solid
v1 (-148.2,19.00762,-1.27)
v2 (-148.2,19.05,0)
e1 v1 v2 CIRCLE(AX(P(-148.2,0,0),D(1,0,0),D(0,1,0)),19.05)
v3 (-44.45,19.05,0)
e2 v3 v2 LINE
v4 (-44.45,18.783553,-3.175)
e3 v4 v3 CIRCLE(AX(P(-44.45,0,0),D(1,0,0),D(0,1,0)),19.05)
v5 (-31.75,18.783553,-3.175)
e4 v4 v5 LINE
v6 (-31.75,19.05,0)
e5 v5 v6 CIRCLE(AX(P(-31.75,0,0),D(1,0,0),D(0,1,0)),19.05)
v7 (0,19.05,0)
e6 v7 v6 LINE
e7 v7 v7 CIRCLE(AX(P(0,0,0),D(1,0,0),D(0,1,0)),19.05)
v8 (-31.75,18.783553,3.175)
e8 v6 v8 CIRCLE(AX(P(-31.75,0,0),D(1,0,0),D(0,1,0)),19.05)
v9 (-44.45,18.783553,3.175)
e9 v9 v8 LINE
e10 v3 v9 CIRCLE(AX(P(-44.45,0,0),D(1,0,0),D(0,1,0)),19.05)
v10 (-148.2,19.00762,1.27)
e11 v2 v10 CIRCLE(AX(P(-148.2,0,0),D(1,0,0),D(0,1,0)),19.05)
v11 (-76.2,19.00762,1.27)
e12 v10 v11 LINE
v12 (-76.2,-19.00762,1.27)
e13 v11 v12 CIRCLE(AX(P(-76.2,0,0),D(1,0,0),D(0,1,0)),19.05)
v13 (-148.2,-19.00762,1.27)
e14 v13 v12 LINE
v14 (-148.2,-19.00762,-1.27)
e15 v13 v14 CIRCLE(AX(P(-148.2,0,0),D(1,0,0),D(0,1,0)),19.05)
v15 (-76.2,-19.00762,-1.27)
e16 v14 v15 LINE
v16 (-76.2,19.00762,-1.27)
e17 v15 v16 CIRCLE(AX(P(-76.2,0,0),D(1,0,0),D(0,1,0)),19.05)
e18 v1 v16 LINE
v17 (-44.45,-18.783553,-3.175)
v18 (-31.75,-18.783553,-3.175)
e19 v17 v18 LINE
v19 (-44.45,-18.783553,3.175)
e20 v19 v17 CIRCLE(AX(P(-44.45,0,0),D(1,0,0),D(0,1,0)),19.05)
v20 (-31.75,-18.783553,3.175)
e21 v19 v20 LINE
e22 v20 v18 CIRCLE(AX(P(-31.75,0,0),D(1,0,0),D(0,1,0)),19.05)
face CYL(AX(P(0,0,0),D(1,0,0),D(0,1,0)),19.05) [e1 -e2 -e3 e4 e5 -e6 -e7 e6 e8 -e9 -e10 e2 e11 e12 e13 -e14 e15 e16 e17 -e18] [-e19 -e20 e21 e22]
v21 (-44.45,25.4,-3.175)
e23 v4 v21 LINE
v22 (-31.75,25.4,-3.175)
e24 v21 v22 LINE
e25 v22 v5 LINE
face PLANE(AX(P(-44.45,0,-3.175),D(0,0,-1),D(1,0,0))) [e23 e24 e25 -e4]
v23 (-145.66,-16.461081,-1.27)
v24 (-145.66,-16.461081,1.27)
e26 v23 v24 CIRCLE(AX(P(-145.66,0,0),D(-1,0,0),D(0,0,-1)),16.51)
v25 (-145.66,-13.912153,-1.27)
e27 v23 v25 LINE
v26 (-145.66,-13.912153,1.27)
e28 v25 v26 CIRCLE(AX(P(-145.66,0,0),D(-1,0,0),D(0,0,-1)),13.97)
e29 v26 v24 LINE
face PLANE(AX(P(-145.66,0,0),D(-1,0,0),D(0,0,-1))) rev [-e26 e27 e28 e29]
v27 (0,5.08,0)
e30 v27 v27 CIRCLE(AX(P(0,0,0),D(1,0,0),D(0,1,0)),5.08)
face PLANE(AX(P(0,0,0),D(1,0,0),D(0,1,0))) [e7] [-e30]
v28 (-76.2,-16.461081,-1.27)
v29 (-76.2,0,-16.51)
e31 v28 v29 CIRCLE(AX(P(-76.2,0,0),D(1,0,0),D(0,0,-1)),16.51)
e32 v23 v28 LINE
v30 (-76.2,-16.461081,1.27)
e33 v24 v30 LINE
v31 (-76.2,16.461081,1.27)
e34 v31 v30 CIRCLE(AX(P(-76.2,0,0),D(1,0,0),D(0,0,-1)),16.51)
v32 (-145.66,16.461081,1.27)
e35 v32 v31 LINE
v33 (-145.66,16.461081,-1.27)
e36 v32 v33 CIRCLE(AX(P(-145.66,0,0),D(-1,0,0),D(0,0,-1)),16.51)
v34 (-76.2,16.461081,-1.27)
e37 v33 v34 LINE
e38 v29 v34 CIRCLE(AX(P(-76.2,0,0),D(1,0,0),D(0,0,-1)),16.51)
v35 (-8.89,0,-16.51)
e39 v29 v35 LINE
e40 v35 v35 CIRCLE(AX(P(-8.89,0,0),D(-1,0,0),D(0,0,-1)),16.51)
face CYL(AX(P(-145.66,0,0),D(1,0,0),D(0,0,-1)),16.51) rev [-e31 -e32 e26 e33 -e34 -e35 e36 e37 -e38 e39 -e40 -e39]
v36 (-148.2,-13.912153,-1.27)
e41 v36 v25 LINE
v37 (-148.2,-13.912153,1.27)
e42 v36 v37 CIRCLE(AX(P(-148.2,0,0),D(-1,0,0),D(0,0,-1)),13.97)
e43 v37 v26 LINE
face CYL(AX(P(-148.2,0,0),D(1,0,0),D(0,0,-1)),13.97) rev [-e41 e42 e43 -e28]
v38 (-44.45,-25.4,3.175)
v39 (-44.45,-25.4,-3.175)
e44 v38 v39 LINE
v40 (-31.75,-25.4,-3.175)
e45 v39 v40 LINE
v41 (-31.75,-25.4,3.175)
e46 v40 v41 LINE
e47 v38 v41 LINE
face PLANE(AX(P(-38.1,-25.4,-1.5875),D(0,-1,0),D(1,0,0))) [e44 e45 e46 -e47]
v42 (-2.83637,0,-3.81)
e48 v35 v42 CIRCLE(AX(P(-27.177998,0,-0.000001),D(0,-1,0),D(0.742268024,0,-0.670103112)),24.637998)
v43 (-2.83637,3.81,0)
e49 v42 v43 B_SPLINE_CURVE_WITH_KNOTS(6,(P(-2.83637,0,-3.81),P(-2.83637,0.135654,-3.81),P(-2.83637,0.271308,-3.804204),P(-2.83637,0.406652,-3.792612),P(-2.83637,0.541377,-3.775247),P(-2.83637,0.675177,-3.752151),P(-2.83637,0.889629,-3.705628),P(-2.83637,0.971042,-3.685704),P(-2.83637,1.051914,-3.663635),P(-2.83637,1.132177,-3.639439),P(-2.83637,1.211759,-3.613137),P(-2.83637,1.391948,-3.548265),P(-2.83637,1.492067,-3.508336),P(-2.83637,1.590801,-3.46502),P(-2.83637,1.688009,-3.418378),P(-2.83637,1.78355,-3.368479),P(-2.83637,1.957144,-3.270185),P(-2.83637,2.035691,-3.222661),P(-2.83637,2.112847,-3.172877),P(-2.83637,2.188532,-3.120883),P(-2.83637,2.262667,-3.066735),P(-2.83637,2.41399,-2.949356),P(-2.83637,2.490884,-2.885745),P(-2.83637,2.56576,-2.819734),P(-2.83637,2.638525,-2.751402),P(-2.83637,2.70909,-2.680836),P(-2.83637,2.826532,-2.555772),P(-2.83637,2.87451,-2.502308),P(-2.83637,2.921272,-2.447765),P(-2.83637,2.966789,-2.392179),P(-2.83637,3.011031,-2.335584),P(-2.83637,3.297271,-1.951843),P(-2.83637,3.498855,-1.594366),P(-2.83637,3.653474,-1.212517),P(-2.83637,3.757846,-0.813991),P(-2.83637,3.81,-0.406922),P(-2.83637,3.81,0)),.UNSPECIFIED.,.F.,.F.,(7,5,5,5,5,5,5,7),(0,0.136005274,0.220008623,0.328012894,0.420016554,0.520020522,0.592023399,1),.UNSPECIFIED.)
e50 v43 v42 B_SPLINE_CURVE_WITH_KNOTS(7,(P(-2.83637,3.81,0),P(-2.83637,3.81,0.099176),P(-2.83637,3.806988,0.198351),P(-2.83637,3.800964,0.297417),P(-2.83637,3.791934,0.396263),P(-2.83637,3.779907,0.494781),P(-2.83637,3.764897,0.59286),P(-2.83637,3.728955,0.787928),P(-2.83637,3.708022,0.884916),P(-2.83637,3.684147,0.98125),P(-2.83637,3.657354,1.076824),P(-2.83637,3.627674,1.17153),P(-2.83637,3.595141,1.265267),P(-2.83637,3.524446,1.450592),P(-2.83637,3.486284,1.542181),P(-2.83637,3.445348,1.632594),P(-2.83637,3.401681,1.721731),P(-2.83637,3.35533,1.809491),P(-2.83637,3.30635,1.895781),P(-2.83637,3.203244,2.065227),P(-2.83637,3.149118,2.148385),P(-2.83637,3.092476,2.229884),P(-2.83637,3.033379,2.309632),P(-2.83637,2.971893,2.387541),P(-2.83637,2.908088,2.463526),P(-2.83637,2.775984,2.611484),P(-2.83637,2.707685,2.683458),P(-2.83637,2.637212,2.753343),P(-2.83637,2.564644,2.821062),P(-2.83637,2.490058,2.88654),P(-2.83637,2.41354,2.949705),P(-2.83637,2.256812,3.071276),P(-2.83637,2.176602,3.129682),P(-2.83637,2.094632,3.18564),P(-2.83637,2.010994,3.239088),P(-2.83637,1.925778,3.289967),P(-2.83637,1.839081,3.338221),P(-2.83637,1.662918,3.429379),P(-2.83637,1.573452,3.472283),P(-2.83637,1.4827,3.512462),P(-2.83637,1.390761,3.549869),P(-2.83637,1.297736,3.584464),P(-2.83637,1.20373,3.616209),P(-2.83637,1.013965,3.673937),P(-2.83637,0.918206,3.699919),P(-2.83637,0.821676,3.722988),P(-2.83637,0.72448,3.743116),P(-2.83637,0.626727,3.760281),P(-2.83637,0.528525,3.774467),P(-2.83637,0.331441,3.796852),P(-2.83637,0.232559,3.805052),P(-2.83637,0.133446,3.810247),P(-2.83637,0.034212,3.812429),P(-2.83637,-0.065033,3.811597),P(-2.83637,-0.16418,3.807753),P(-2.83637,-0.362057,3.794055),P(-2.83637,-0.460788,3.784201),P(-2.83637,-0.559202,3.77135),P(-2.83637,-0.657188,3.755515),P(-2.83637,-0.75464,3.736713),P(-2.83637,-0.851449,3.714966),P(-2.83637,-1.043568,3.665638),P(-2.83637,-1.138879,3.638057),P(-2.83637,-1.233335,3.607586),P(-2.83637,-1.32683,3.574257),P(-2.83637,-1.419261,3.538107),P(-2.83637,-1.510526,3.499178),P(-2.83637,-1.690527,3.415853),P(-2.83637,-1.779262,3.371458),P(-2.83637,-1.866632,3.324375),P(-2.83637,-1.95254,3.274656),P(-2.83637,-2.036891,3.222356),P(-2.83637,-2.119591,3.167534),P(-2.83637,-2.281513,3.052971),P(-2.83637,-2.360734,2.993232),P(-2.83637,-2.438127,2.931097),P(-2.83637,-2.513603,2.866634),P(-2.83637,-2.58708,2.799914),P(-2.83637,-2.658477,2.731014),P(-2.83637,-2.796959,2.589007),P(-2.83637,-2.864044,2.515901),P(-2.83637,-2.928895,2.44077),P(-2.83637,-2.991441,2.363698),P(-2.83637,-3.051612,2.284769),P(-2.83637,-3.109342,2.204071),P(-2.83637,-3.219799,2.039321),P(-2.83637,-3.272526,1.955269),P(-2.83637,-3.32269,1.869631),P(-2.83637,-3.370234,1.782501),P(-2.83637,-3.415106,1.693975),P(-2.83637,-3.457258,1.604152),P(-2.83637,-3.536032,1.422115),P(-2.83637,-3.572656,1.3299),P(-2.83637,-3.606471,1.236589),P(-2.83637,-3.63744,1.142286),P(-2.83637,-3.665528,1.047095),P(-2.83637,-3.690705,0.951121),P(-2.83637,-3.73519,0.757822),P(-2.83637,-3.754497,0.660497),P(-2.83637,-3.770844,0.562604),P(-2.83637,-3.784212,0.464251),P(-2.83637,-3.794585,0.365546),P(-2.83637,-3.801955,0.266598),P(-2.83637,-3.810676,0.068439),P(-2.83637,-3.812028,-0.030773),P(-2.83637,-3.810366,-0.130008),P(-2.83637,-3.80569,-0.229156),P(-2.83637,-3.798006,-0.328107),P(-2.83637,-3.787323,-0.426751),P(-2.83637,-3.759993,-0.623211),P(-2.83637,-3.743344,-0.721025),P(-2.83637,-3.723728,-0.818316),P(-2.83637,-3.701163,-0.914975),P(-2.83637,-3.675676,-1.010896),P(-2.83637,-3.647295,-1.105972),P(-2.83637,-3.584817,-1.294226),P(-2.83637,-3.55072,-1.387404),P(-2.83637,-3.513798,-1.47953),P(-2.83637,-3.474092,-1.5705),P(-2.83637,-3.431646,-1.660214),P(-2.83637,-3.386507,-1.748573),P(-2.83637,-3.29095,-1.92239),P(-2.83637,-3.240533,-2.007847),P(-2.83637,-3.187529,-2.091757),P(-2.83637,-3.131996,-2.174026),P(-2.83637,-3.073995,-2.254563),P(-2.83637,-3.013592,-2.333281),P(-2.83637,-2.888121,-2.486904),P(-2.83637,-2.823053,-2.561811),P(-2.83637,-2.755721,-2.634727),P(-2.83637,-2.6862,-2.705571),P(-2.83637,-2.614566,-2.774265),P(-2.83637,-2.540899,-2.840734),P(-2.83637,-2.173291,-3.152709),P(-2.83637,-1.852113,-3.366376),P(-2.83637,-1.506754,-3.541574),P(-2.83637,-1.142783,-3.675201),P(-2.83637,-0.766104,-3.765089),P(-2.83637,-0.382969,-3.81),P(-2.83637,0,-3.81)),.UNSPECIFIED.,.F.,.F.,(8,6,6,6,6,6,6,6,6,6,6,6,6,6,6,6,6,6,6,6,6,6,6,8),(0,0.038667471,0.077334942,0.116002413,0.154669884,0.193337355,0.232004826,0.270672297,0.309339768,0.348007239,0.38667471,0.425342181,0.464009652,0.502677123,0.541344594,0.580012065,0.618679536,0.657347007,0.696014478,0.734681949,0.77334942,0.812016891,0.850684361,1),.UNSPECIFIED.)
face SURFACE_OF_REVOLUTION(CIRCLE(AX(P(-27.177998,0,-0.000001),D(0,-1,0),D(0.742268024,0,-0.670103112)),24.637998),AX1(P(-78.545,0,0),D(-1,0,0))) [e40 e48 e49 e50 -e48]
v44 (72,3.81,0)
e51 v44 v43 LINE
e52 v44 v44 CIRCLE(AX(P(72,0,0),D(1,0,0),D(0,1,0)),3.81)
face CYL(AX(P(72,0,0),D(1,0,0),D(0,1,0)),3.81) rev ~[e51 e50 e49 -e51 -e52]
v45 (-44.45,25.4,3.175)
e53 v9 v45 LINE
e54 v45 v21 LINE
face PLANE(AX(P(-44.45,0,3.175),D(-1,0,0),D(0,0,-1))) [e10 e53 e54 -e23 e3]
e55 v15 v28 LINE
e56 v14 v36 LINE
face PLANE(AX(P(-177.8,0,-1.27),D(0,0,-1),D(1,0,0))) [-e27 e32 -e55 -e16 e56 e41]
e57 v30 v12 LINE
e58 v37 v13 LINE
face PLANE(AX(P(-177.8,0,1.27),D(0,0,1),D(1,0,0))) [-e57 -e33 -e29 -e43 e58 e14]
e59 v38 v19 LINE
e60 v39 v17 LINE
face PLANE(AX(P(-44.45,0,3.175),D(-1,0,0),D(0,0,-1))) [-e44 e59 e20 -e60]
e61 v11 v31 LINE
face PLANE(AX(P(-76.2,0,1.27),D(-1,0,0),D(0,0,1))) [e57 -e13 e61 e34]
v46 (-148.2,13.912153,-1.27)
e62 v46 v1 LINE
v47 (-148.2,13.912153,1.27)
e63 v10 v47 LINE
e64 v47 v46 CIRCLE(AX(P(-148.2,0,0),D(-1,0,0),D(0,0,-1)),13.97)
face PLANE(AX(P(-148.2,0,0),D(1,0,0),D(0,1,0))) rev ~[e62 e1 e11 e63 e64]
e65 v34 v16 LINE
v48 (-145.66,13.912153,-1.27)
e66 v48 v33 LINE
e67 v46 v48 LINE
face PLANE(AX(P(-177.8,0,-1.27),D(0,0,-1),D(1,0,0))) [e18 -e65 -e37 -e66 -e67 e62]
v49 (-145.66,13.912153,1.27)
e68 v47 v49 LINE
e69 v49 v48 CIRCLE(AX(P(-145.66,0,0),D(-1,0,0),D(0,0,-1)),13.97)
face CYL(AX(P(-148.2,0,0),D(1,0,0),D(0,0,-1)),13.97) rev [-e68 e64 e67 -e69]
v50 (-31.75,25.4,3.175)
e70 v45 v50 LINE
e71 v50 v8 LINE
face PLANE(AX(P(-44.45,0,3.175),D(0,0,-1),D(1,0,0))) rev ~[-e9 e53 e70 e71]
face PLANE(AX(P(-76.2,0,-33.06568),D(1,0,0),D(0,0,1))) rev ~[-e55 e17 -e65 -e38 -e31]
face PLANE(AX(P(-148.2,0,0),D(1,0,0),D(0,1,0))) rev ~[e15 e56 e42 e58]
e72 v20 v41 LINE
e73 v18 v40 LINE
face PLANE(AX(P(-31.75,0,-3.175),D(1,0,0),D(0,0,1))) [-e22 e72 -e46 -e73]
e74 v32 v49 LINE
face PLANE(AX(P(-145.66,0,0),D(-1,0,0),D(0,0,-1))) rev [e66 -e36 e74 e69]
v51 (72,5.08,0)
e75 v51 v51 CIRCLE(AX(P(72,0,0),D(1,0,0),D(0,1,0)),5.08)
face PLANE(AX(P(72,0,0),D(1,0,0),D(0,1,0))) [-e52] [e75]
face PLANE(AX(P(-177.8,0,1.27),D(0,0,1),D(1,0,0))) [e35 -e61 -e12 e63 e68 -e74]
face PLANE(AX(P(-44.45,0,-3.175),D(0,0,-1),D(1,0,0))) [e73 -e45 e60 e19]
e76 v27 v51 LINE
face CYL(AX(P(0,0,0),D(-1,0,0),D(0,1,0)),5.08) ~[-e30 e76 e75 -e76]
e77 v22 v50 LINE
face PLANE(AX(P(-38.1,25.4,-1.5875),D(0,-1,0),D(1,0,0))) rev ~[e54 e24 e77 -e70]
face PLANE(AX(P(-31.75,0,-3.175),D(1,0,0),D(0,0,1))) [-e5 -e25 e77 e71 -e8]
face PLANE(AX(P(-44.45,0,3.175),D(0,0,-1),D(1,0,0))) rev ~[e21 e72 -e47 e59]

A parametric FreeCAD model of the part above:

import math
import FreeCAD as App
import Part
import Sketcher
from FreeCAD import Vector
Q = App.Units.Quantity

doc = App.newDocument("Part")
body = doc.addObject("PartDesign::Body", "Body")

# Sketch on YZ plane
sketch1 = body.newObject("Sketcher::SketchObject", "Sketch")
sketch1.AttachmentSupport = (doc.getObject("YZ_Plane"), [""])
sketch1.MapMode = "FlatFace"
sketch1.addGeometry(Part.Circle(Vector(0, 0, 0), Vector(0, 0, 1), 19), False)
sketch1.addConstraint([
    Sketcher.Constraint("Coincident", 0, 3, -1, 1),
    Sketcher.Constraint("Diameter", 0, Q("1.5 in")),
])
pad1 = body.newObject("PartDesign::Pad", "Pad")
pad1.Profile = sketch1
pad1.Length = 148.2
pad1.Reversed = True

# Sketch on XZ plane
sketch2 = body.newObject("Sketcher::SketchObject", "Sketch001")
sketch2.AttachmentSupport = (doc.getObject("XZ_Plane"), [""])
sketch2.MapMode = "FlatFace"
sketch2.addGeometry([
    Part.LineSegment(Vector(-44, -3, 0), Vector(-32, -3, 0)),
    Part.LineSegment(Vector(-32, -3, 0), Vector(-32, 3, 0)),
    Part.LineSegment(Vector(-32, 3, 0), Vector(-44, 3, 0)),
    Part.LineSegment(Vector(-44, 3, 0), Vector(-44, -3, 0)),
], False)
sketch2.addConstraint([
    Sketcher.Constraint("Coincident", 0, 2, 1, 1),
    Sketcher.Constraint("Coincident", 1, 2, 2, 1),
    Sketcher.Constraint("Coincident", 2, 2, 3, 1),
    Sketcher.Constraint("Coincident", 3, 2, 0, 1),
    Sketcher.Constraint("Horizontal", 0),
    Sketcher.Constraint("Vertical", 1),
    Sketcher.Constraint("Horizontal", 2),
    Sketcher.Constraint("Vertical", 3),
    Sketcher.Constraint("DistanceX", 0, 1, 0, 2, Q("0.5 in")),
    Sketcher.Constraint("DistanceY", 1, 1, 1, 2, Q("0.25 in")),
    Sketcher.Constraint("DistanceX", 0, 2, -1, 1, Q("1.25 in")),
    Sketcher.Constraint("DistanceY", 0, 2, -1, 1, Q("0.125 in")),
])
pad2 = body.newObject("PartDesign::Pad", "Pad001")
pad2.Profile = sketch2
pad2.Length = Q("2 in")
pad2.Midplane = True

# Sketch on XZ plane
sketch3 = body.newObject("Sketcher::SketchObject", "Sketch002")
sketch3.AttachmentSupport = (doc.getObject("XZ_Plane"), [""])
sketch3.MapMode = "FlatFace"
sketch3.addGeometry([
    Part.ArcOfCircle(Part.Circle(Vector(-27.2, 0, 0), Vector(0, 0, 1), 24.6), math.radians(-42), math.radians(0)),  # 0
    Part.LineSegment(Vector(-2.5, 0, 0), Vector(-148.2, 0, 0)),  # 1
    Part.LineSegment(Vector(-148.2, 0, 0), Vector(-148.2, -14, 0)),  # 2
    Part.LineSegment(Vector(-148.2, -14, 0), Vector(-145.7, -14, 0)),  # 3
    Part.LineSegment(Vector(-145.7, -14, 0), Vector(-145.7, -16.5, 0)),  # 4
    Part.LineSegment(Vector(-145.7, -16.5, 0), Vector(-8.9, -16.5, 0)),  # 5
], False)
sketch3.addConstraint([
    Sketcher.Constraint("Coincident", 0, 2, 1, 1),
    Sketcher.Constraint("Coincident", 1, 2, 2, 1),
    Sketcher.Constraint("Coincident", 2, 2, 3, 1),
    Sketcher.Constraint("Coincident", 3, 2, 4, 1),
    Sketcher.Constraint("Coincident", 4, 2, 5, 1),
    Sketcher.Constraint("Coincident", 5, 2, 0, 1),
    Sketcher.Constraint("Horizontal", 1),
    Sketcher.Constraint("Vertical", 2),
    Sketcher.Constraint("Horizontal", 3),
    Sketcher.Constraint("Vertical", 4),
    Sketcher.Constraint("Horizontal", 5),
    Sketcher.Constraint("PointOnObject", 0, 3, -1),
    Sketcher.Constraint("PointOnObject", 0, 2, -1),
    Sketcher.Constraint("Equal", 3, 4),
    Sketcher.Constraint("Radius", 0, Q("0.9699999 in")),
    Sketcher.Constraint("DistanceX", 3, 1, 3, 2, Q("0.1 in")),
    Sketcher.Constraint("DistanceY", 2, 2, 2, 1, Q("0.55 in")),
    Sketcher.Constraint("DistanceX", 0, 2, -1, 1, Q("0.1 in")),
    Sketcher.Constraint("DistanceX", 1, 2, 1, 1, 145.66),
])
groove = body.newObject("PartDesign::Groove", "Groove")
groove.Profile = sketch3
groove.ReferenceAxis = (sketch3, ["H_Axis"])
groove.Angle = 360

# Sketch on XZ plane
sketch4 = body.newObject("Sketcher::SketchObject", "Sketch003")
sketch4.AttachmentSupport = (doc.getObject("XZ_Plane"), [""])
sketch4.MapMode = "FlatFace"
sketch4.addGeometry([
    Part.LineSegment(Vector(-178, 1, 0), Vector(-76, 1, 0)),  # 0
    Part.LineSegment(Vector(-76, 1, 0), Vector(-76, 26, 0)),  # 1
    Part.LineSegment(Vector(-76, 26, 0), Vector(-179, 26, 0)),  # 2
    Part.LineSegment(Vector(-179, 26, 0), Vector(-178, 1, 0)),  # 3
    Part.LineSegment(Vector(-178, -1, 0), Vector(-178, -33, 0)),  # 4
    Part.LineSegment(Vector(-178, -33, 0), Vector(-76, -33, 0)),  # 5
    Part.LineSegment(Vector(-76, -33, 0), Vector(-76, -1, 0)),  # 6
    Part.LineSegment(Vector(-76, -1, 0), Vector(-178, -1, 0)),  # 7
], False)
sketch4.addConstraint([
    Sketcher.Constraint("Coincident", 0, 2, 1, 1),
    Sketcher.Constraint("Coincident", 1, 2, 2, 1),
    Sketcher.Constraint("Coincident", 2, 2, 3, 1),
    Sketcher.Constraint("Coincident", 3, 2, 0, 1),
    Sketcher.Constraint("Coincident", 4, 2, 5, 1),
    Sketcher.Constraint("Coincident", 5, 2, 6, 1),
    Sketcher.Constraint("Coincident", 6, 2, 7, 1),
    Sketcher.Constraint("Coincident", 7, 2, 4, 1),
    Sketcher.Constraint("Horizontal", 0),
    Sketcher.Constraint("Vertical", 1),
    Sketcher.Constraint("Horizontal", 2),
    Sketcher.Constraint("Vertical", 4),
    Sketcher.Constraint("Horizontal", 5),
    Sketcher.Constraint("Vertical", 6),
    Sketcher.Constraint("Horizontal", 7),
    Sketcher.Constraint("Symmetric", 0, 2, 6, 2, -1),
    Sketcher.Constraint("Vertical", 3, 2, 4, 2),
    Sketcher.Constraint("DistanceX", 0, 1, 0, 2, Q("4 in")),
    Sketcher.Constraint("DistanceX", 0, 2, -1, 1, Q("3 in")),
    Sketcher.Constraint("DistanceY", 6, 2, 0, 2, Q("0.1 in")),
    Sketcher.Constraint("DistanceY", 4, 2, 4, 1, 31.79568),
    Sketcher.Constraint("DistanceX", 2, 2, 2, 1, 102.792286),
    Sketcher.Constraint("DistanceY", 1, 1, 1, 2, 24.782563),
])
pocket1 = body.newObject("PartDesign::Pocket", "Pocket")
pocket1.Profile = sketch4
pocket1.Length = Q("2 in")
pocket1.Midplane = True

# Sketch on YZ plane
sketch5 = body.newObject("Sketcher::SketchObject", "Sketch004")
sketch5.AttachmentSupport = (doc.getObject("YZ_Plane"), [""])
sketch5.MapMode = "FlatFace"
sketch5.addGeometry(Part.Circle(Vector(0, 0, 0), Vector(0, 0, 1), 5), False)
sketch5.addConstraint([
    Sketcher.Constraint("Coincident", 0, 3, -1, 1),
    Sketcher.Constraint("Diameter", 0, Q("0.4 in")),
])
pad3 = body.newObject("PartDesign::Pad", "Pad002")
pad3.Profile = sketch5
pad3.Length = 72

# Sketch on YZ plane
sketch6 = body.newObject("Sketcher::SketchObject", "Sketch005")
sketch6.AttachmentSupport = (doc.getObject("YZ_Plane"), [""])
sketch6.MapMode = "FlatFace"
sketch6.AttachmentOffset = App.Placement(Vector(0, 0, 72), App.Rotation())
sketch6.addGeometry(Part.Circle(Vector(0, 0, 0), Vector(0, 0, 1), 3.8), False)
sketch6.addConstraint([
    Sketcher.Constraint("Coincident", 0, 3, -1, 1),
    Sketcher.Constraint("Diameter", 0, Q("0.3 in")),
])
pocket2 = body.newObject("PartDesign::Pocket", "Pocket001")
pocket2.Profile = sketch6
pocket2.Length = Q("6 in")

doc.recompute()
